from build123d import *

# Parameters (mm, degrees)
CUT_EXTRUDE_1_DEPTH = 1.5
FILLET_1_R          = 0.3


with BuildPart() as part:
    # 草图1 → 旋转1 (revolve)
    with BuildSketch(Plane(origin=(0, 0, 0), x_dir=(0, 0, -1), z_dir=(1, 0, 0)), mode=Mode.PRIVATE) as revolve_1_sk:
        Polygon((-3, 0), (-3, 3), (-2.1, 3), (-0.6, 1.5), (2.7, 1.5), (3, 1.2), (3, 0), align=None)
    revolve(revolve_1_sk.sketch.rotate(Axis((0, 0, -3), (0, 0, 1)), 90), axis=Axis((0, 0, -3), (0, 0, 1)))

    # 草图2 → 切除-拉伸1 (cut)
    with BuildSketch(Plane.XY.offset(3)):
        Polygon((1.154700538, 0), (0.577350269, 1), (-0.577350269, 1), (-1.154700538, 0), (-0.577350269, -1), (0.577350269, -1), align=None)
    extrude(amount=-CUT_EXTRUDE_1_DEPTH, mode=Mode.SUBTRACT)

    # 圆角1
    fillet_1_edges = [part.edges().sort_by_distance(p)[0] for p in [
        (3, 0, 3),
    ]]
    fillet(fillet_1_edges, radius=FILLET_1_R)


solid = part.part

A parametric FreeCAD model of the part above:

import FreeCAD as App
import Part
import Sketcher
Q = App.Units.Quantity


def edges_at(feature, points):
    """Names of the edges that pass closest to the given points."""
    edges = feature.Shape.Edges
    near = lambda p: min(range(len(edges)), key=lambda i: edges[i].distToShape(Part.Vertex(*p))[0])
    return sorted({f"Edge{near(p) + 1}" for p in points})

doc = App.newDocument("Part")
body = doc.addObject("PartDesign::Body", "Body")

# Sketch on YZ plane
sketch1 = body.newObject("Sketcher::SketchObject", "Sketch")
sketch1.AttachmentSupport = (doc.getObject("YZ_Plane"), [""])
sketch1.MapMode = "FlatFace"
sketch1.addGeometry([
    Part.LineSegment(App.Vector(3, 3, 0), App.Vector(0, 3, 0)),  # 0
    Part.LineSegment(App.Vector(0, 3, 0), App.Vector(0, -3, 0)),  # 1
    Part.LineSegment(App.Vector(0, -3, 0), App.Vector(1.2, -3, 0)),  # 2
    Part.LineSegment(App.Vector(1.2, -3, 0), App.Vector(1.5, -2.7, 0)),  # 3
    Part.LineSegment(App.Vector(1.5, -2.7, 0), App.Vector(1.5, 0.6, 0)),  # 4
    Part.LineSegment(App.Vector(1.5, 0.6, 0), App.Vector(3, 2.1, 0)),  # 5
    Part.LineSegment(App.Vector(3, 2.1, 0), App.Vector(3, 3, 0)),  # 6
], False)
sketch1.addConstraint([
    Sketcher.Constraint("Coincident", 0, 2, 1, 1),
    Sketcher.Constraint("Coincident", 1, 2, 2, 1),
    Sketcher.Constraint("Coincident", 2, 2, 3, 1),
    Sketcher.Constraint("Coincident", 3, 2, 4, 1),
    Sketcher.Constraint("Coincident", 4, 2, 5, 1),
    Sketcher.Constraint("Coincident", 5, 2, 6, 1),
    Sketcher.Constraint("Coincident", 6, 2, 0, 1),
    Sketcher.Constraint("Horizontal", 0),
    Sketcher.Constraint("Vertical", 1),
    Sketcher.Constraint("Horizontal", 2),
    Sketcher.Constraint("Vertical", 4),
    Sketcher.Constraint("Vertical", 6),
    Sketcher.Constraint("Symmetric", 0, 2, 1, 2, -1, 1),
    Sketcher.Constraint("Parallel", 3, 5),
    Sketcher.Constraint("DistanceX", 0, 2, 0, 1, 3.0),
    Sketcher.Constraint("DistanceY", 1, 2, 1, 1, 6.0),
    Sketcher.Constraint("Angle", 3, Q("45 deg")),
    Sketcher.Constraint("DistanceX", 2, 1, 2, 2, 1.2),
    Sketcher.Constraint("DistanceY", 4, 1, 4, 2, 3.3),
    Sketcher.Constraint("DistanceX", -1, 1, 3, 2, 1.5),
])
revolution = body.newObject("PartDesign::Revolution", "Revolution")
revolution.Profile = sketch1
revolution.ReferenceAxis = (sketch1, ["V_Axis"])
revolution.Angle = 360

# Sketch on XY plane
sketch2 = body.newObject("Sketcher::SketchObject", "Sketch001")
sketch2.AttachmentSupport = (doc.getObject("XY_Plane"), [""])
sketch2.MapMode = "FlatFace"
sketch2.AttachmentOffset = App.Placement(App.Vector(0, 0, 3), App.Rotation())
sketch2.addGeometry([
    Part.LineSegment(App.Vector(1.2, 0, 0), App.Vector(0.6, 1, 0)),  # 0
    Part.LineSegment(App.Vector(0.6, 1, 0), App.Vector(-0.6, 1, 0)),  # 1
    Part.LineSegment(App.Vector(-0.6, 1, 0), App.Vector(-1.2, 0, 0)),  # 2
    Part.LineSegment(App.Vector(-1.2, 0, 0), App.Vector(-0.6, -1, 0)),  # 3
    Part.LineSegment(App.Vector(-0.6, -1, 0), App.Vector(0.6, -1, 0)),  # 4
    Part.LineSegment(App.Vector(0.6, -1, 0), App.Vector(1.2, 0, 0)),  # 5
], False)
sketch2.addConstraint([
    Sketcher.Constraint("Coincident", 0, 2, 1, 1),
    Sketcher.Constraint("Coincident", 1, 2, 2, 1),
    Sketcher.Constraint("Coincident", 2, 2, 3, 1),
    Sketcher.Constraint("Coincident", 3, 2, 4, 1),
    Sketcher.Constraint("Coincident", 4, 2, 5, 1),
    Sketcher.Constraint("Coincident", 5, 2, 0, 1),
    Sketcher.Constraint("Horizontal", 1),
    Sketcher.Constraint("Horizontal", 4),
    Sketcher.Constraint("Symmetric", 0, 2, 3, 2, -1, 1),
    Sketcher.Constraint("Symmetric", 2, 2, 5, 2, -1, 1),
    Sketcher.Constraint("PointOnObject", 2, 2, -1),
    Sketcher.Constraint("Parallel", 2, 5),
    Sketcher.Constraint("Vertical", 1, 2, 3, 2),
    Sketcher.Constraint("Angle", 0, Q("120 deg")),
    Sketcher.Constraint("DistanceY", -1, 1, 0, 2, 1.0),
    Sketcher.Constraint("DistanceX", 1, 2, 1, 1, 1.154701),
])
pocket1 = body.newObject("PartDesign::Pocket", "Pocket")
pocket1.Profile = sketch2
pocket1.Length = 1.5
doc.recompute()

fillet = body.newObject("PartDesign::Fillet", "Fillet")
fillet.Base = (pocket1, edges_at(pocket1, [(3, 0, 3)]))
fillet.Radius = 0.3

doc.recompute()
